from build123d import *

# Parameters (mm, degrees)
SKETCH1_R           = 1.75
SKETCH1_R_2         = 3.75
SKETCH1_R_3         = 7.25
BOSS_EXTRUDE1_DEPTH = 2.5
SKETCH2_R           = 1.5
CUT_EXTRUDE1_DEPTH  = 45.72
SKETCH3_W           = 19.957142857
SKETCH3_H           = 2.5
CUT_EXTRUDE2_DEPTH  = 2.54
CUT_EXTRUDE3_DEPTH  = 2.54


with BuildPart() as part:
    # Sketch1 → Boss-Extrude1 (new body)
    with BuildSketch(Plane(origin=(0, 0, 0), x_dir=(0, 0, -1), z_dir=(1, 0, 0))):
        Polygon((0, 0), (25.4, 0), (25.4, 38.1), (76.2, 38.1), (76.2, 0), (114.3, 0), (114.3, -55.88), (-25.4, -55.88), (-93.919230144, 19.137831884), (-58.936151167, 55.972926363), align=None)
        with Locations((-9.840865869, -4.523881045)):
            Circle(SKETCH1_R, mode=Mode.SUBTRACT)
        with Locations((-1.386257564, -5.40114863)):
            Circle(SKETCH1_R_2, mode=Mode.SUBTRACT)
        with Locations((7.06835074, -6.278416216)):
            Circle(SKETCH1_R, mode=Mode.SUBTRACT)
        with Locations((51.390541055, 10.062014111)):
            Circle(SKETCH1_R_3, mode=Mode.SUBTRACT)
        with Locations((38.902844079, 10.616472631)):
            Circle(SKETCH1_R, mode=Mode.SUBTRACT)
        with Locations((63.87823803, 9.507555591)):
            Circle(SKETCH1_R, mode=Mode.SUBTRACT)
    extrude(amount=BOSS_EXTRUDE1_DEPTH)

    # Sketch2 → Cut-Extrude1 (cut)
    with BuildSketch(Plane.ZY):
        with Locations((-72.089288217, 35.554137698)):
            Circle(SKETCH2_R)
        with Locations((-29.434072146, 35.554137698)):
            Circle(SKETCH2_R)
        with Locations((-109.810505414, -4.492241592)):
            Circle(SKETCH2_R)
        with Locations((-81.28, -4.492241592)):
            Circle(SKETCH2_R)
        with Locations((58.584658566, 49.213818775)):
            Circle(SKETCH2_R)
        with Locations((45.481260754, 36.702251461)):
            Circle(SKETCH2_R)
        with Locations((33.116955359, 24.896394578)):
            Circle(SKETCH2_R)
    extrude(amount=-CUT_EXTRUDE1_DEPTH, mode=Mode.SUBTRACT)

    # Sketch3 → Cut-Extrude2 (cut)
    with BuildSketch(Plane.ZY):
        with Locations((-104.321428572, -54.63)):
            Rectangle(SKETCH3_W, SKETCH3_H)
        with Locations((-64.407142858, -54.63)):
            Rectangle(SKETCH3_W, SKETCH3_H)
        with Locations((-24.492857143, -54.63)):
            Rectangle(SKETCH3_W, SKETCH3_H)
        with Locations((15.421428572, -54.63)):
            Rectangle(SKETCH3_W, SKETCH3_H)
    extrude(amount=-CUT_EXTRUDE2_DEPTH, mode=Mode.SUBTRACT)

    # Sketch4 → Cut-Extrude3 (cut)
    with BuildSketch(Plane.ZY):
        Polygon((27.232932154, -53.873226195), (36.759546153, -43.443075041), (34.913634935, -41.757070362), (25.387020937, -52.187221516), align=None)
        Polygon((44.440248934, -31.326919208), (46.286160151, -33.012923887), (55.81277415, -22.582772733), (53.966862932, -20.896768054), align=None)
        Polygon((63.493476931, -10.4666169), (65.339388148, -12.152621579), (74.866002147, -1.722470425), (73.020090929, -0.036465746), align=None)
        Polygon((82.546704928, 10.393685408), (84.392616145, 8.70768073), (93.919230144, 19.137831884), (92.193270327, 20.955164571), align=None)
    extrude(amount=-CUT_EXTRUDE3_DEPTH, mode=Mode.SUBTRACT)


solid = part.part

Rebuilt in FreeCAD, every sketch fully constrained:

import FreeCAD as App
import Part
import Sketcher

V = App.Vector
Q = App.Units.Quantity

doc = App.newDocument("Part")
params = doc.addObject("Spreadsheet::Sheet", "Params")
for row, (alias, value) in enumerate([
    ("sketch1_height", "1 in"),
    ("sketch1_height2", "2 in"),
    ("sketch1_length", "2 in"),
    ("sketch1_length2", "4 in"),
    ("sketch1_width", "2.2 in"),
    ("pad1_length", "2.5 mm"),
    ("pocket1_length", "1.8 in"),
    ("pocket2_length", "0.1 in"),
    ("pocket3_length", "0.1 in"),
], start=1):
    params.set(f"A{row}", alias)
    params.set(f"B{row}", "=" + value)
    params.setAlias(f"B{row}", alias)

body = doc.addObject("PartDesign::Body", "Body")

# Sketch on YZ plane
sketch1 = body.newObject("Sketcher::SketchObject", "Sketch")
sketch1.AttachmentSupport = (doc.getObject("YZ_Plane"), [""])
sketch1.MapMode = "FlatFace"
sketch1.addGeometry([
    Part.LineSegment(V(0, -25.4, 0), V(0, 0, 0)),  # 0
    Part.LineSegment(V(0, 0, 0), V(56, 58.9, 0)),  # 1
    Part.LineSegment(V(56, 58.9, 0), V(19.1, 93.9, 0)),  # 2
    Part.LineSegment(V(19.1, 93.9, 0), V(-55.9, 25.4, 0)),  # 3
    Part.LineSegment(V(-55.9, 25.4, 0), V(-55.9, -114.3, 0)),  # 4
    Part.LineSegment(V(-55.9, -114.3, 0), V(0, -114.3, 0)),  # 5
    Part.LineSegment(V(0, -114.3, 0), V(0, -76.2, 0)),  # 6
    Part.LineSegment(V(0, -76.2, 0), V(38.1, -76.2, 0)),  # 7
    Part.LineSegment(V(38.1, -76.2, 0), V(38.1, -25.4, 0)),  # 8
    Part.LineSegment(V(38.1, -25.4, 0), V(0, -25.4, 0)),  # 9
    Part.Circle(V(-6.3, -7.1, 0), V(0, 0, 1), 1.8),  # 10
    Part.Circle(V(-5.4, 1.4, 0), V(0, 0, 1), 3.8),  # 11
    Part.Circle(V(-4.5, 9.8, 0), V(0, 0, 1), 1.8),  # 12
    Part.Circle(V(9.5, -63.9, 0), V(0, 0, 1), 1.8),  # 13
    Part.Circle(V(10.1, -51.4, 0), V(0, 0, 1), 7.2),  # 14
    Part.Circle(V(10.6, -38.9, 0), V(0, 0, 1), 1.8),  # 15
], False)
sketch1.addConstraint([
    Sketcher.Constraint("Coincident", 0, 2, 1, 1),
    Sketcher.Constraint("Coincident", 1, 2, 2, 1),
    Sketcher.Constraint("Coincident", 2, 2, 3, 1),
    Sketcher.Constraint("Coincident", 3, 2, 4, 1),
    Sketcher.Constraint("Coincident", 4, 2, 5, 1),
    Sketcher.Constraint("Coincident", 5, 2, 6, 1),
    Sketcher.Constraint("Coincident", 6, 2, 7, 1),
    Sketcher.Constraint("Coincident", 7, 2, 8, 1),
    Sketcher.Constraint("Coincident", 8, 2, 9, 1),
    Sketcher.Constraint("Coincident", 9, 2, 0, 1),
    Sketcher.Constraint("Vertical", 0),
    Sketcher.Constraint("Vertical", 4),
    Sketcher.Constraint("Horizontal", 5),
    Sketcher.Constraint("Vertical", 6),
    Sketcher.Constraint("Horizontal", 7),
    Sketcher.Constraint("Vertical", 8),
    Sketcher.Constraint("Horizontal", 9),
    Sketcher.Constraint("Coincident", 0, 2, -1, 1),
    Sketcher.Constraint("Equal", 10, 12),
    Sketcher.Constraint("Equal", 12, 13),
    Sketcher.Constraint("Equal", 13, 15),
    Sketcher.Constraint("PointOnObject", 5, 2, -2),
    Sketcher.Constraint("Perpendicular", 1, 2),
    Sketcher.Constraint("Equal", 9, 6),
    Sketcher.Constraint("DistanceY", 0, 1, 0, 2, Q("1 in")),
    Sketcher.Constraint("DistanceY", 8, 1, 8, 2, Q("2 in")),
    Sketcher.Constraint("Distance", 2, Q("2 in")),
    Sketcher.Constraint("Distance", 3, Q("4 in")),
    Sketcher.Constraint("DistanceX", 5, 1, 5, 2, Q("2.2 in")),
    Sketcher.Constraint("DistanceX", 7, 1, 7, 2, Q("1.5 in")),
    Sketcher.Constraint("DistanceY", 4, 2, 4, 1, Q("5.5 in")),
    Sketcher.Constraint("Distance", 1, Q("3.2 in")),
    Sketcher.Constraint("Diameter", 10, Q("3.5 mm")),
    Sketcher.Constraint("Diameter", 11, Q("7.5 mm")),
    Sketcher.Constraint("Diameter", 14, Q("14.5 mm")),
    Sketcher.Constraint("DistanceY", 14, 3, 11, 3, Q("52.776799 mm")),
    Sketcher.Constraint("DistanceY", 15, 3, 11, 3, Q("40.289102 mm")),
    Sketcher.Constraint("DistanceY", 10, 3, 1, 2, Q("66.004502 mm")),
    Sketcher.Constraint("DistanceX", 11, 3, -1, 1, Q("5.401149 mm")),
    Sketcher.Constraint("DistanceX", 12, 3, -1, 1, Q("4.523881 mm")),
    Sketcher.Constraint("DistanceY", 13, 3, -1, 1, Q("63.878238 mm")),
    Sketcher.Constraint("DistanceY", 14, 3, -1, 1, Q("51.390541 mm")),
    Sketcher.Constraint("DistanceY", 11, 3, 12, 3, Q("8.454608 mm")),
    Sketcher.Constraint("DistanceX", 10, 3, 13, 3, Q("15.785972 mm")),
    Sketcher.Constraint("DistanceX", 13, 3, 14, 3, Q("0.554459 mm")),
    Sketcher.Constraint("DistanceX", 14, 3, 15, 3, Q("0.554459 mm")),
    Sketcher.Constraint("DistanceX", 11, 3, 15, 3, Q("16.017621 mm")),
])
sketch1.setExpression("Constraints[24]", "Params.sketch1_height")
sketch1.setExpression("Constraints[25]", "Params.sketch1_height2")
sketch1.setExpression("Constraints[26]", "Params.sketch1_length")
sketch1.setExpression("Constraints[27]", "Params.sketch1_length2")
sketch1.setExpression("Constraints[28]", "Params.sketch1_width")
pad1 = body.newObject("PartDesign::Pad", "Pad")
pad1.Profile = sketch1
pad1.setExpression("Length", "Params.pad1_length")

# Sketch on YZ plane
sketch2 = body.newObject("Sketcher::SketchObject", "Sketch001")
sketch2.AttachmentSupport = (doc.getObject("YZ_Plane"), [""])
sketch2.MapMode = "FlatFace"
sketch2.addGeometry([
    Part.Circle(V(35.6, -72.1, 0), V(0, 0, 1), 1.5),  # 0
    Part.Circle(V(35.6, -29.4, 0), V(0, 0, 1), 1.5),  # 1
    Part.Circle(V(-4.5, -109.8, 0), V(0, 0, 1), 1.5),  # 2
    Part.Circle(V(-4.5, -81.3, 0), V(0, 0, 1), 1.5),  # 3
    Part.Circle(V(49.2, 58.6, 0), V(0, 0, 1), 1.5),  # 4
    Part.Circle(V(36.7, 45.5, 0), V(0, 0, 1), 1.5),  # 5
    Part.Circle(V(24.9, 33.1, 0), V(0, 0, 1), 1.5),  # 6
], False)
sketch2.addConstraint([
    Sketcher.Constraint("Equal", 0, 1),
    Sketcher.Constraint("Equal", 1, 2),
    Sketcher.Constraint("Equal", 2, 3),
    Sketcher.Constraint("Equal", 3, 4),
    Sketcher.Constraint("Equal", 4, 5),
    Sketcher.Constraint("Equal", 5, 6),
    Sketcher.Constraint("Vertical", 0, 3, 1, 3),
    Sketcher.Constraint("Vertical", 2, 3, 3, 3),
    Sketcher.Constraint("DistanceY", 3, 3, -1, 1, Q("3.2 in")),
    Sketcher.Constraint("Diameter", 0, Q("3 mm")),
    Sketcher.Constraint("DistanceY", 0, 3, -1, 1, Q("72.089288 mm")),
    Sketcher.Constraint("DistanceX", 2, 3, -1, 1, Q("4.492242 mm")),
    Sketcher.Constraint("DistanceX", -1, 1, 4, 3, Q("49.213819 mm")),
    Sketcher.Constraint("DistanceY", -1, 1, 4, 3, Q("58.584659 mm")),
    Sketcher.Constraint("DistanceX", -1, 1, 5, 3, Q("36.702251 mm")),
    Sketcher.Constraint("DistanceY", -1, 1, 5, 3, Q("45.481261 mm")),
    Sketcher.Constraint("DistanceX", 2, 3, 0, 3, Q("40.046379 mm")),
    Sketcher.Constraint("DistanceY", 1, 3, 4, 3, Q("88.018731 mm")),
    Sketcher.Constraint("DistanceY", 2, 3, -1, 1, Q("109.810505 mm")),
    Sketcher.Constraint("DistanceX", -1, 1, 6, 3, Q("24.896395 mm")),
    Sketcher.Constraint("DistanceY", -1, 1, 6, 3, Q("33.116955 mm")),
])
pocket1 = body.newObject("PartDesign::Pocket", "Pocket")
pocket1.Profile = sketch2
pocket1.setExpression("Length", "Params.pocket1_length")
pocket1.Reversed = True

# Sketch on YZ plane
sketch3 = body.newObject("Sketcher::SketchObject", "Sketch002")
sketch3.AttachmentSupport = (doc.getObject("YZ_Plane"), [""])
sketch3.MapMode = "FlatFace"
sketch3.addGeometry([
    Part.LineSegment(V(-53.4, -114.3, 0), V(-55.9, -114.3, 0)),  # 0
    Part.LineSegment(V(-55.9, -114.3, 0), V(-55.9, -94.3, 0)),  # 1
    Part.LineSegment(V(-55.9, -94.3, 0), V(-53.4, -94.3, 0)),  # 2
    Part.LineSegment(V(-53.4, -94.3, 0), V(-53.4, -114.3, 0)),  # 3
    Part.LineSegment(V(-53.4, -74.4, 0), V(-55.9, -74.4, 0)),  # 4
    Part.LineSegment(V(-55.9, -74.4, 0), V(-55.9, -54.4, 0)),  # 5
    Part.LineSegment(V(-55.9, -54.4, 0), V(-53.4, -54.4, 0)),  # 6
    Part.LineSegment(V(-53.4, -54.4, 0), V(-53.4, -74.4, 0)),  # 7
    Part.LineSegment(V(-53.4, -34.5, 0), V(-55.9, -34.5, 0)),  # 8
    Part.LineSegment(V(-55.9, -34.5, 0), V(-55.9, -14.5, 0)),  # 9
    Part.LineSegment(V(-55.9, -14.5, 0), V(-53.4, -14.5, 0)),  # 10
    Part.LineSegment(V(-53.4, -14.5, 0), V(-53.4, -34.5, 0)),  # 11
    Part.LineSegment(V(-53.4, 5.4, 0), V(-55.9, 5.4, 0)),  # 12
    Part.LineSegment(V(-55.9, 5.4, 0), V(-55.9, 25.4, 0)),  # 13
    Part.LineSegment(V(-55.9, 25.4, 0), V(-53.4, 25.4, 0)),  # 14
    Part.LineSegment(V(-53.4, 25.4, 0), V(-53.4, 5.4, 0)),  # 15
], False)
sketch3.addConstraint([
    Sketcher.Constraint("Coincident", 0, 2, 1, 1),
    Sketcher.Constraint("Coincident", 1, 2, 2, 1),
    Sketcher.Constraint("Coincident", 2, 2, 3, 1),
    Sketcher.Constraint("Coincident", 3, 2, 0, 1),
    Sketcher.Constraint("Coincident", 4, 2, 5, 1),
    Sketcher.Constraint("Coincident", 5, 2, 6, 1),
    Sketcher.Constraint("Coincident", 6, 2, 7, 1),
    Sketcher.Constraint("Coincident", 7, 2, 4, 1),
    Sketcher.Constraint("Coincident", 8, 2, 9, 1),
    Sketcher.Constraint("Coincident", 9, 2, 10, 1),
    Sketcher.Constraint("Coincident", 10, 2, 11, 1),
    Sketcher.Constraint("Coincident", 11, 2, 8, 1),
    Sketcher.Constraint("Coincident", 12, 2, 13, 1),
    Sketcher.Constraint("Coincident", 13, 2, 14, 1),
    Sketcher.Constraint("Coincident", 14, 2, 15, 1),
    Sketcher.Constraint("Coincident", 15, 2, 12, 1),
    Sketcher.Constraint("Horizontal", 0),
    Sketcher.Constraint("Vertical", 1),
    Sketcher.Constraint("Horizontal", 2),
    Sketcher.Constraint("Vertical", 3),
    Sketcher.Constraint("Horizontal", 4),
    Sketcher.Constraint("Vertical", 5),
    Sketcher.Constraint("Horizontal", 6),
    Sketcher.Constraint("Vertical", 7),
    Sketcher.Constraint("Horizontal", 8),
    Sketcher.Constraint("Vertical", 9),
    Sketcher.Constraint("Horizontal", 10),
    Sketcher.Constraint("Vertical", 11),
    Sketcher.Constraint("Horizontal", 12),
    Sketcher.Constraint("Vertical", 13),
    Sketcher.Constraint("Horizontal", 14),
    Sketcher.Constraint("Vertical", 15),
    Sketcher.Constraint("Vertical", 1, 2, 4, 2),
    Sketcher.Constraint("Vertical", 3, 2, 6, 2),
    Sketcher.Constraint("Vertical", 5, 2, 8, 2),
    Sketcher.Constraint("Vertical", 7, 2, 10, 2),
    Sketcher.Constraint("Vertical", 9, 2, 12, 2),
    Sketcher.Constraint("Vertical", 11, 2, 14, 2),
    Sketcher.Constraint("Equal", 3, 5),
    Sketcher.Constraint("Equal", 7, 9),
    Sketcher.Constraint("Equal", 11, 13),
    Sketcher.Constraint("DistanceY", -1, 1, 13, 2, Q("1 in")),
    Sketcher.Constraint("DistanceX", 0, 2, -1, 1, Q("2.2 in")),
    Sketcher.Constraint("DistanceY", 0, 2, -1, 1, Q("4.5 in")),
    Sketcher.Constraint("DistanceX", 0, 2, 0, 1, Q("2.5 mm")),
    Sketcher.Constraint("DistanceY", 1, 1, 1, 2, Q("19.957143 mm")),
    Sketcher.Constraint("DistanceY", 5, 2, -1, 1, Q("54.428571 mm")),
    Sketcher.Constraint("DistanceY", 8, 2, -1, 1, Q("34.471429 mm")),
])
pocket2 = body.newObject("PartDesign::Pocket", "Pocket001")
pocket2.Profile = sketch3
pocket2.setExpression("Length", "Params.pocket2_length")
pocket2.Reversed = True

# Sketch on YZ plane
sketch4 = body.newObject("Sketcher::SketchObject", "Sketch003")
sketch4.AttachmentSupport = (doc.getObject("YZ_Plane"), [""])
sketch4.MapMode = "FlatFace"
sketch4.addGeometry([
    Part.LineSegment(V(-53.9, 27.2, 0), V(-43.4, 36.8, 0)),  # 0
    Part.LineSegment(V(-43.4, 36.8, 0), V(-41.8, 34.9, 0)),  # 1
    Part.LineSegment(V(-41.8, 34.9, 0), V(-52.2, 25.4, 0)),  # 2
    Part.LineSegment(V(-52.2, 25.4, 0), V(-53.9, 27.2, 0)),  # 3
    Part.LineSegment(V(-31.3, 44.4, 0), V(-33, 46.3, 0)),  # 4
    Part.LineSegment(V(-33, 46.3, 0), V(-22.6, 55.8, 0)),  # 5
    Part.LineSegment(V(-22.6, 55.8, 0), V(-20.9, 54, 0)),  # 6
    Part.LineSegment(V(-20.9, 54, 0), V(-31.3, 44.4, 0)),  # 7
    Part.LineSegment(V(-10.5, 63.5, 0), V(-12.2, 65.3, 0)),  # 8
    Part.LineSegment(V(-12.2, 65.3, 0), V(-1.7, 74.9, 0)),  # 9
    Part.LineSegment(V(-1.7, 74.9, 0), V(0, 73, 0)),  # 10
    Part.LineSegment(V(0, 73, 0), V(-10.5, 63.5, 0)),  # 11
    Part.LineSegment(V(10.4, 82.5, 0), V(8.7, 84.4, 0)),  # 12
    Part.LineSegment(V(8.7, 84.4, 0), V(19.1, 93.9, 0)),  # 13
    Part.LineSegment(V(19.1, 93.9, 0), V(21, 92.2, 0)),  # 14
    Part.LineSegment(V(21, 92.2, 0), V(10.4, 82.5, 0)),  # 15
], False)
sketch4.addConstraint([
    Sketcher.Constraint("Coincident", 0, 2, 1, 1),
    Sketcher.Constraint("Coincident", 1, 2, 2, 1),
    Sketcher.Constraint("Coincident", 2, 2, 3, 1),
    Sketcher.Constraint("Coincident", 3, 2, 0, 1),
    Sketcher.Constraint("Coincident", 4, 2, 5, 1),
    Sketcher.Constraint("Coincident", 5, 2, 6, 1),
    Sketcher.Constraint("Coincident", 6, 2, 7, 1),
    Sketcher.Constraint("Coincident", 7, 2, 4, 1),
    Sketcher.Constraint("Coincident", 8, 2, 9, 1),
    Sketcher.Constraint("Coincident", 9, 2, 10, 1),
    Sketcher.Constraint("Coincident", 10, 2, 11, 1),
    Sketcher.Constraint("Coincident", 11, 2, 8, 1),
    Sketcher.Constraint("Coincident", 12, 2, 13, 1),
    Sketcher.Constraint("Coincident", 13, 2, 14, 1),
    Sketcher.Constraint("Coincident", 14, 2, 15, 1),
    Sketcher.Constraint("Coincident", 15, 2, 12, 1),
    Sketcher.Constraint("Perpendicular", 0, 1),
    Sketcher.Constraint("Perpendicular", 1, 2),
    Sketcher.Constraint("Perpendicular", 2, 3),
    Sketcher.Constraint("Parallel", 3, 4),
    Sketcher.Constraint("Perpendicular", 4, 5),
    Sketcher.Constraint("Perpendicular", 5, 6),
    Sketcher.Constraint("Perpendicular", 6, 7),
    Sketcher.Constraint("Perpendicular", 7, 8),
    Sketcher.Constraint("Perpendicular", 8, 9),
    Sketcher.Constraint("Perpendicular", 9, 10),
    Sketcher.Constraint("Perpendicular", 10, 11),
    Sketcher.Constraint("Perpendicular", 11, 12),
    Sketcher.Constraint("Perpendicular", 12, 13),
    Sketcher.Constraint("Parallel", 13, 15),
    Sketcher.Constraint("Equal", 3, 4),
    Sketcher.Constraint("Equal", 2, 5),
    Sketcher.Constraint("Equal", 6, 8),
    Sketcher.Constraint("Equal", 7, 9),
    Sketcher.Constraint("Equal", 10, 12),
    Sketcher.Constraint("Equal", 11, 13),
    Sketcher.Constraint("Distance", 1, Q("2.5 mm")),
    Sketcher.Constraint("Distance", 0, Q("14.12602 mm")),
    Sketcher.Constraint("Distance", 14, Q("2.506319 mm")),
    Sketcher.Constraint("DistanceX", 1, 2, -1, 1, Q("41.75707 mm")),
    Sketcher.Constraint("DistanceX", 2, 2, -1, 1, Q("52.187222 mm")),
    Sketcher.Constraint("DistanceY", -1, 1, 2, 2, Q("25.387021 mm")),
    Sketcher.Constraint("DistanceY", -1, 1, 4, 2, Q("46.28616 mm")),
    Sketcher.Constraint("DistanceX", 6, 2, -1, 1, Q("20.896768 mm")),
    Sketcher.Constraint("DistanceX", 8, 2, -1, 1, Q("12.152622 mm")),
    Sketcher.Constraint("DistanceY", -1, 1, 8, 2, Q("65.339388 mm")),
    Sketcher.Constraint("DistanceX", -1, 1, 12, 2, Q("8.707681 mm")),
    Sketcher.Constraint("DistanceY", -1, 1, 13, 2, Q("93.91923 mm")),
])
pocket3 = body.newObject("PartDesign::Pocket", "Pocket002")
pocket3.Profile = sketch4
pocket3.setExpression("Length", "Params.pocket3_length")
pocket3.Reversed = True

doc.recompute()
